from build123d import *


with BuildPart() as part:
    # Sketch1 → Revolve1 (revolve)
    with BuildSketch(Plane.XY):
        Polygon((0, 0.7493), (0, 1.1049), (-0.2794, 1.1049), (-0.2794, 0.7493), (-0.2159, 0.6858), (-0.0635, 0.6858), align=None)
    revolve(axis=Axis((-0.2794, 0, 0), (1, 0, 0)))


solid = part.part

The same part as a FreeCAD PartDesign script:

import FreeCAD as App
import Part
import Sketcher
from FreeCAD import Vector
Q = App.Units.Quantity

doc = App.newDocument("Part")
params = doc.addObject("Spreadsheet::Sheet", "Params")
for row, (alias, value) in enumerate([
    ("sketch1_width", "0.011 in"),
    ("sketch1_width2", "0.006 in"),
    ("sketch1_height", "0.014 in"),
    ("revolution_angle", "360 deg"),
], start=1):
    params.set(f"A{row}", alias)
    params.set(f"B{row}", "=" + value)
    params.setAlias(f"B{row}", alias)

body = doc.addObject("PartDesign::Body", "Body")

# Sketch on XY plane
sketch1 = doc.addObject("Sketcher::SketchObject", "Sketch")
body.addObject(sketch1)
sketch1.AttachmentSupport = (doc.XY_Plane, [""])
sketch1.MapMode = "FlatFace"
sketch1.addGeometry([
    Part.LineSegment(Vector(0, 0.75, 0), Vector(0, 1.1, 0)),  # 0
    Part.LineSegment(Vector(0, 1.1, 0), Vector(-0.28, 1.1, 0)),  # 1
    Part.LineSegment(Vector(-0.28, 1.1, 0), Vector(-0.28, 0.75, 0)),  # 2
    Part.LineSegment(Vector(-0.28, 0.75, 0), Vector(-0.22, 0.69, 0)),  # 3
    Part.LineSegment(Vector(-0.22, 0.69, 0), Vector(-0.06, 0.69, 0)),  # 4
    Part.LineSegment(Vector(-0.06, 0.69, 0), Vector(0, 0.75, 0)),  # 5
], False)
sketch1.addConstraint([
    Sketcher.Constraint("Coincident", 0, 2, 1, 1),
    Sketcher.Constraint("Coincident", 1, 2, 2, 1),
    Sketcher.Constraint("Coincident", 2, 2, 3, 1),
    Sketcher.Constraint("Coincident", 3, 2, 4, 1),
    Sketcher.Constraint("Coincident", 4, 2, 5, 1),
    Sketcher.Constraint("Coincident", 5, 2, 0, 1),
    Sketcher.Constraint("Vertical", 0),
    Sketcher.Constraint("Horizontal", 1),
    Sketcher.Constraint("Vertical", 2),
    Sketcher.Constraint("Horizontal", 4),
    Sketcher.Constraint("PointOnObject", 0, 2, -2),
    Sketcher.Constraint("Perpendicular", 3, 5),
    Sketcher.Constraint("Horizontal", 2, 2, 5, 2),
    Sketcher.Constraint("Equal", 3, 5),
    Sketcher.Constraint("DistanceX", 1, 2, 1, 1, Q("0.011 in")),
    Sketcher.Constraint("DistanceX", 4, 1, 4, 2, Q("0.006 in")),
    Sketcher.Constraint("DistanceY", 0, 1, 0, 2, Q("0.014 in")),
    Sketcher.Constraint("DistanceY", -1, 1, 3, 2, Q("0.027 in")),
])
sketch1.setExpression("Constraints[14]", "Params.sketch1_width")
sketch1.setExpression("Constraints[15]", "Params.sketch1_width2")
sketch1.setExpression("Constraints[16]", "Params.sketch1_height")
revolution = doc.addObject("PartDesign::Revolution", "Revolution")
body.addObject(revolution)
revolution.Profile = sketch1
revolution.ReferenceAxis = (sketch1, ["H_Axis"])
revolution.setExpression("Angle", "Params.revolution_angle")

doc.recompute()
